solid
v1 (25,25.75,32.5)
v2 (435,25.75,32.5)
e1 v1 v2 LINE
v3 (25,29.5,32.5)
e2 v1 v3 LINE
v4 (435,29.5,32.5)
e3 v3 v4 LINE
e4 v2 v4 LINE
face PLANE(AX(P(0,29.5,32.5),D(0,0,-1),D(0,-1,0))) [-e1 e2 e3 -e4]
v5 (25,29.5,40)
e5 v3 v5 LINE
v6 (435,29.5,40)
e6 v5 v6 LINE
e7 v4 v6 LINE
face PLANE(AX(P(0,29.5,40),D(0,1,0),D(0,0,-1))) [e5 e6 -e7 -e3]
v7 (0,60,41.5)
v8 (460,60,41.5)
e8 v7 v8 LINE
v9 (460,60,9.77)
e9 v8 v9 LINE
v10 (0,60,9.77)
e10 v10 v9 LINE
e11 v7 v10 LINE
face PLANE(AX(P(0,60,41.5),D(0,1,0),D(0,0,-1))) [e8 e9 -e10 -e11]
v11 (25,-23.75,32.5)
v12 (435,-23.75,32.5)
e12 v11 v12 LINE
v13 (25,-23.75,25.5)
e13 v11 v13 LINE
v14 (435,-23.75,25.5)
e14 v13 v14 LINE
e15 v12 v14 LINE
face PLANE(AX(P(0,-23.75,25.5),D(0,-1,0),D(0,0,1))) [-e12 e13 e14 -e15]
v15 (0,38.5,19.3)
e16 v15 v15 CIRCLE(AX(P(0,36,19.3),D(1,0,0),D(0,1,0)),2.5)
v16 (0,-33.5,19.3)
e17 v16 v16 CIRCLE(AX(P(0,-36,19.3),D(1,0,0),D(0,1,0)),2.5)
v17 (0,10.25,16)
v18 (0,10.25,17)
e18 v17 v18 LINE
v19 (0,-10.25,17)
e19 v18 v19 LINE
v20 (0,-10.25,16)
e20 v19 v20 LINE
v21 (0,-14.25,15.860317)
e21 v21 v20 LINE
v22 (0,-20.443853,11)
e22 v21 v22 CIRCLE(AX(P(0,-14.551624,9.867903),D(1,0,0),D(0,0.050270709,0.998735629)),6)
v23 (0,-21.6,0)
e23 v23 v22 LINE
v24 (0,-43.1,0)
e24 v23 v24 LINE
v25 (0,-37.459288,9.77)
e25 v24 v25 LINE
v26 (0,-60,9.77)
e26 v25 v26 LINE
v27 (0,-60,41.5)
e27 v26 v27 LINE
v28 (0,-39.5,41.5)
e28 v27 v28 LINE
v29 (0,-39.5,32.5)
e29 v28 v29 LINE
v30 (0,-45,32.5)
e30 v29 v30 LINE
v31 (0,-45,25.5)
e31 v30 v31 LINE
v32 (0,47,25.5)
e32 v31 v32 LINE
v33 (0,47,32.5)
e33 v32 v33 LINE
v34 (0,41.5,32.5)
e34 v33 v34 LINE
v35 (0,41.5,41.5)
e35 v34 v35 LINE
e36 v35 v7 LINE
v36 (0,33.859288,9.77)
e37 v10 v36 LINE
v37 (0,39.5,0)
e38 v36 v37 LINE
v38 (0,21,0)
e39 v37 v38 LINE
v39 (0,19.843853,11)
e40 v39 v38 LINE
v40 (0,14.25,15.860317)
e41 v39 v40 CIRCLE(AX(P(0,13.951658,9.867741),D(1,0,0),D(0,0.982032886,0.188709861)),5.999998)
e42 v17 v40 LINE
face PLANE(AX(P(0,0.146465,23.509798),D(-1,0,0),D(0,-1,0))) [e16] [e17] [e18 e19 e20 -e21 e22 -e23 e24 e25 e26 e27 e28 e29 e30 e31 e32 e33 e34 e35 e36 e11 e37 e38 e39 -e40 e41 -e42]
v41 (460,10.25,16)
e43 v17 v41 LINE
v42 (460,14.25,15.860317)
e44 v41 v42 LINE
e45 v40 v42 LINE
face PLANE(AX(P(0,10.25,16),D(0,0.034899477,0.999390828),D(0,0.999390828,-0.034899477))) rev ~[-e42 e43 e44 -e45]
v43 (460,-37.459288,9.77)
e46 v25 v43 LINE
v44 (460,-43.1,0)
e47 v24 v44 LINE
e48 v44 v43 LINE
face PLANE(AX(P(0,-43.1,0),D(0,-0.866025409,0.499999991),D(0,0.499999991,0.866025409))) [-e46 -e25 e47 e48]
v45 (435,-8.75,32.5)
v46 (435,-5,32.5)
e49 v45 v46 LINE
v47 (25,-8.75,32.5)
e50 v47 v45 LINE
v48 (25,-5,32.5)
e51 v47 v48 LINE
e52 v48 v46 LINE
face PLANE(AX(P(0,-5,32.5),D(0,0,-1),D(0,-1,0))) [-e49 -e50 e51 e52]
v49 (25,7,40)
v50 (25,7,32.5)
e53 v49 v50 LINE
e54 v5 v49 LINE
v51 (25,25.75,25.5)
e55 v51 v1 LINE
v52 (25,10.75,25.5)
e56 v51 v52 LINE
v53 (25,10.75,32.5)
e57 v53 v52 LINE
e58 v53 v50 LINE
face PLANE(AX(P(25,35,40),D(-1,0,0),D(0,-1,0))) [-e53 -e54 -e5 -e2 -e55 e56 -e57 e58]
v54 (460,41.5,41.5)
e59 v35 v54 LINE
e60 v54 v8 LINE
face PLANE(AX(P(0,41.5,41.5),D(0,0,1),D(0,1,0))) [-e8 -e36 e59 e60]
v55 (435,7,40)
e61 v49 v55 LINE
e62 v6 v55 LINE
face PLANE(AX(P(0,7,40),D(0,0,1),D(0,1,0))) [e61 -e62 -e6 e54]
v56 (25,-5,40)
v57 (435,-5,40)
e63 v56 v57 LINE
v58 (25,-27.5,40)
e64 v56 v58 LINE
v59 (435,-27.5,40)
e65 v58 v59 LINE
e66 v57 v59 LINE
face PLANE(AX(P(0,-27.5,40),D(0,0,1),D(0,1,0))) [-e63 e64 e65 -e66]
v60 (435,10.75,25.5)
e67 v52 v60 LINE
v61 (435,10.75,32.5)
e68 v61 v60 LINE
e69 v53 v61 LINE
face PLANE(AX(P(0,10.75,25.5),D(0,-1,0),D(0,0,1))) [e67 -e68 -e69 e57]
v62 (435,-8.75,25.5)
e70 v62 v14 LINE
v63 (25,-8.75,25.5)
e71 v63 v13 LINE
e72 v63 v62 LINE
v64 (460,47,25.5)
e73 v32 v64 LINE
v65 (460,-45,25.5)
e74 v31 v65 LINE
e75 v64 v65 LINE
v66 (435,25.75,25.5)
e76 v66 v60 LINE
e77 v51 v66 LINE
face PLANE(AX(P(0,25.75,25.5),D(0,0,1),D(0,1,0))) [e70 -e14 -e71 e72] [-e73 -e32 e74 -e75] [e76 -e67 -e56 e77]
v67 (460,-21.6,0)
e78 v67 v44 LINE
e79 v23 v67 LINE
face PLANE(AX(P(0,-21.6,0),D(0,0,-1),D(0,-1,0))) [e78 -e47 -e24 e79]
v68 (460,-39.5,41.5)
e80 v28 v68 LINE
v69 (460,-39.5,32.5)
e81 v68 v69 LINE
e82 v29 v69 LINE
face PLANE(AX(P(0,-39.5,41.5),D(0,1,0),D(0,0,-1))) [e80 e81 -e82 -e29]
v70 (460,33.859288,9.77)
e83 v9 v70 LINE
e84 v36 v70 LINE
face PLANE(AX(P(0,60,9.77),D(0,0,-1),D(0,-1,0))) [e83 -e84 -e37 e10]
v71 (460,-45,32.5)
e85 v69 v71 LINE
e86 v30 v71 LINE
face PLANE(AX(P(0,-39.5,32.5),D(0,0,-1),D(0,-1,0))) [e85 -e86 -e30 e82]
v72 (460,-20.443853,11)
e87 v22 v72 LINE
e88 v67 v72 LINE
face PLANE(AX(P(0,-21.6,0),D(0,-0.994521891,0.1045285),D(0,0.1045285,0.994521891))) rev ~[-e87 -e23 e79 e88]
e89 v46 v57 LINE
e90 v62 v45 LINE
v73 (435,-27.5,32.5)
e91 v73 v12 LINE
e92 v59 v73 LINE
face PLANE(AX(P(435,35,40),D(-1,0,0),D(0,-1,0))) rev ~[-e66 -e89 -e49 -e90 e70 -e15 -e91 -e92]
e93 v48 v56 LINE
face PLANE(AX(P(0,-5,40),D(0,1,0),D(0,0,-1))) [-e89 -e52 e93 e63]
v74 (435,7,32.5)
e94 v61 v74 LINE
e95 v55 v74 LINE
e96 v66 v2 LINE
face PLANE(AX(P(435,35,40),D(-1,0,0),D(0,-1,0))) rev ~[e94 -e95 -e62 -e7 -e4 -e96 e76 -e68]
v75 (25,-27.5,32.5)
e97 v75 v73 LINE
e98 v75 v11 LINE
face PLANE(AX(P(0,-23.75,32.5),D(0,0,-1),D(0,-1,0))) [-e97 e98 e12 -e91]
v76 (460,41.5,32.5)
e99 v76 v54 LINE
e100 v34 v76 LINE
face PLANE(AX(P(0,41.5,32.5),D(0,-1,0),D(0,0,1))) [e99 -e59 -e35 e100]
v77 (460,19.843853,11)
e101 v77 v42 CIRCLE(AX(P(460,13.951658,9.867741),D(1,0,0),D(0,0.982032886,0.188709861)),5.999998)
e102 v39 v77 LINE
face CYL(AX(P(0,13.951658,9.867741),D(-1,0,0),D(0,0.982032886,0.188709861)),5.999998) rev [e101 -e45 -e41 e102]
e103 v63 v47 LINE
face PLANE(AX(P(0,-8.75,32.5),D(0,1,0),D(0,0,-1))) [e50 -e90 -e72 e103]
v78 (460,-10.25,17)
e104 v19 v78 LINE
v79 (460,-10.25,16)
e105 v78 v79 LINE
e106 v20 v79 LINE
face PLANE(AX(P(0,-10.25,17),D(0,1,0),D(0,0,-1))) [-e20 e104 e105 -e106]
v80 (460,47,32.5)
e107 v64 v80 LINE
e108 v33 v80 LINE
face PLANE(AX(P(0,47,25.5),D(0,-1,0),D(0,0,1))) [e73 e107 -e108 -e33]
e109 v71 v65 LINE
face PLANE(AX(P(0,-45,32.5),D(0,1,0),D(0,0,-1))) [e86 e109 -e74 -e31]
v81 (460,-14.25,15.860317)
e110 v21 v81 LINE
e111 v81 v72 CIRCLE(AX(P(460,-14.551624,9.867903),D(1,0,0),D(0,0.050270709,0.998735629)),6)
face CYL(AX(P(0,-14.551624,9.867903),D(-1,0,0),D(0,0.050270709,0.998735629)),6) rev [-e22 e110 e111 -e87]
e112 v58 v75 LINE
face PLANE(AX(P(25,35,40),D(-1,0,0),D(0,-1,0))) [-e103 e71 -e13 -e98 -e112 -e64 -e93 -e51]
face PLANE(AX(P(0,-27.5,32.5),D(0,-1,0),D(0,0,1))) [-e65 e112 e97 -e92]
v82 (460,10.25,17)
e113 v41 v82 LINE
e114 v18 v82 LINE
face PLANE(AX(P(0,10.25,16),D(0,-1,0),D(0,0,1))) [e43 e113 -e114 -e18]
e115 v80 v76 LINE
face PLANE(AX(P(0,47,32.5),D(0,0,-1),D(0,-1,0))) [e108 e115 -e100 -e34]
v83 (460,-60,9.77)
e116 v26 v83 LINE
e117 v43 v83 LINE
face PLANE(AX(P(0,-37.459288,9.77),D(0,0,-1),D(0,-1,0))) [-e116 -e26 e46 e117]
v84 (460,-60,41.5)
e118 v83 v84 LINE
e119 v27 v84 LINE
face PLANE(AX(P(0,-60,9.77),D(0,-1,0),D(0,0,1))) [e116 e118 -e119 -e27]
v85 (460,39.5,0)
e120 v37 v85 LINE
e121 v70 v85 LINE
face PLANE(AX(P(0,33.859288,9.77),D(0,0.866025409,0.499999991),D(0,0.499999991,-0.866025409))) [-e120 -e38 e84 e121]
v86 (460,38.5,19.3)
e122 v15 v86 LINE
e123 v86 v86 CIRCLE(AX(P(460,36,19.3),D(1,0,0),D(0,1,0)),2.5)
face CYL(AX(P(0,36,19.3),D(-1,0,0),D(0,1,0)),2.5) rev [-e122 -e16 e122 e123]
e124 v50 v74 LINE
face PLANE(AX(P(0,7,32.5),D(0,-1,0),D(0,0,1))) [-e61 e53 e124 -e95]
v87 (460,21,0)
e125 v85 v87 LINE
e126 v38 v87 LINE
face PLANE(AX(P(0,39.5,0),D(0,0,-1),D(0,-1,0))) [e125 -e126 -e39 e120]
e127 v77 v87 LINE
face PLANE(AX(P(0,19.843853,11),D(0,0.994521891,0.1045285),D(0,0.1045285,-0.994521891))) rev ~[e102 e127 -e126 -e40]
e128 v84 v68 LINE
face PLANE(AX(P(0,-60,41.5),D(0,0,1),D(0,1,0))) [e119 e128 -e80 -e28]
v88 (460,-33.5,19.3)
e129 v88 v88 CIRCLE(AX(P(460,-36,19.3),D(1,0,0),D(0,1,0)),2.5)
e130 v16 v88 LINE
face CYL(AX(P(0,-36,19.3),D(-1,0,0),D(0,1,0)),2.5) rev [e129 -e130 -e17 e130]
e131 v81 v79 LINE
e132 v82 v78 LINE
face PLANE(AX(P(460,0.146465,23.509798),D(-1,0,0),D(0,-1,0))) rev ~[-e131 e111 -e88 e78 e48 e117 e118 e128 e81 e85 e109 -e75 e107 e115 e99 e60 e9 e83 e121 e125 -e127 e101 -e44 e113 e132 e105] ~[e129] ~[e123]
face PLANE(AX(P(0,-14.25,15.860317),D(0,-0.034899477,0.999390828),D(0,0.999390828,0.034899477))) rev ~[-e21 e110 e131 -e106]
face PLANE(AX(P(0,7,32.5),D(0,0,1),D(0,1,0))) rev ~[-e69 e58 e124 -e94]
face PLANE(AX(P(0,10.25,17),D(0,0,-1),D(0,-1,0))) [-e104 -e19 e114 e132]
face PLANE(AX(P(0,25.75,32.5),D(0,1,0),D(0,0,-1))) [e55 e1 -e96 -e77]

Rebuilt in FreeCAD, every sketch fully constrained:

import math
import FreeCAD as App
import Part
import Sketcher
from FreeCAD import Vector
Q = App.Units.Quantity

doc = App.newDocument("Part")
params = doc.addObject("Spreadsheet::Sheet", "Params")
for row, (alias, value) in enumerate([
    ("sketch1_diameter", "5 mm"),
    ("sketch1_radius", "6 mm"),
    ("sketch1_height", "1 mm"),
    ("sketch1_height2", "9 mm"),
    ("sketch1_height3", "7 mm"),
    ("pad1_length", "460 mm"),
    ("sketch2_width", "25 mm"),
    ("sketch2_height", "70 mm"),
    ("pocket1_length", "14.5 mm"),
], start=1):
    params.set(f"A{row}", alias)
    params.set(f"B{row}", "=" + value)
    params.setAlias(f"B{row}", alias)

body = doc.addObject("PartDesign::Body", "Body")

sketch1 = body.newObject("Sketcher::SketchObject", "Sketch")
sketch1.AttachmentSupport = (doc.getObject("YZ_Plane"), [""])
sketch1.MapMode = "FlatFace"
sketch1.addGeometry([
    Part.LineSegment(Vector(-37.5, 9.8, 0), Vector(-43.1, 0, 0)),
    Part.LineSegment(Vector(-43.1, 0, 0), Vector(-21.6, 0, 0)),
    Part.LineSegment(Vector(-21.6, 0, 0), Vector(-20.4, 11, 0)),
    Part.ArcOfCircle(Part.Circle(Vector(-14.6, 9.9, 0), Vector(0, 0, 1), 6), math.radians(87), math.radians(169)),
    Part.LineSegment(Vector(-14.2, 15.9, 0), Vector(-10.2, 16, 0)),
    Part.LineSegment(Vector(-10.2, 16, 0), Vector(-10.2, 17, 0)),
    Part.LineSegment(Vector(-10.2, 17, 0), Vector(10.2, 17, 0)),
    Part.LineSegment(Vector(10.2, 17, 0), Vector(10.2, 16, 0)),
    Part.LineSegment(Vector(10.2, 16, 0), Vector(14.2, 15.9, 0)),
    Part.ArcOfCircle(Part.Circle(Vector(14, 9.9, 0), Vector(0, 0, 1), 6), math.radians(11), math.radians(87)),
    Part.LineSegment(Vector(19.8, 11, 0), Vector(21, 0, 0)),
    Part.LineSegment(Vector(21, 0, 0), Vector(39.5, 0, 0)),
    Part.LineSegment(Vector(39.5, 0, 0), Vector(33.9, 9.8, 0)),
    Part.LineSegment(Vector(33.9, 9.8, 0), Vector(60, 9.8, 0)),
    Part.LineSegment(Vector(60, 9.8, 0), Vector(60, 41.5, 0)),
    Part.LineSegment(Vector(60, 41.5, 0), Vector(41.5, 41.5, 0)),
    Part.LineSegment(Vector(41.5, 41.5, 0), Vector(41.5, 32.5, 0)),
    Part.LineSegment(Vector(41.5, 32.5, 0), Vector(47, 32.5, 0)),
    Part.LineSegment(Vector(47, 32.5, 0), Vector(47, 25.5, 0)),
    Part.LineSegment(Vector(47, 25.5, 0), Vector(25.8, 25.5, 0)),
    Part.LineSegment(Vector(25.8, 25.5, 0), Vector(25.8, 32.5, 0)),
    Part.LineSegment(Vector(25.8, 32.5, 0), Vector(29.5, 32.5, 0)),
    Part.LineSegment(Vector(29.5, 32.5, 0), Vector(29.5, 40, 0)),
    Part.LineSegment(Vector(29.5, 40, 0), Vector(7, 40, 0)),
    Part.LineSegment(Vector(7, 40, 0), Vector(7, 32.5, 0)),
    Part.LineSegment(Vector(7, 32.5, 0), Vector(10.8, 32.5, 0)),
    Part.LineSegment(Vector(10.8, 32.5, 0), Vector(10.8, 25.5, 0)),
    Part.LineSegment(Vector(10.8, 25.5, 0), Vector(-8.8, 25.5, 0)),
    Part.LineSegment(Vector(-8.8, 25.5, 0), Vector(-8.8, 32.5, 0)),
    Part.LineSegment(Vector(-8.8, 32.5, 0), Vector(-5, 32.5, 0)),
    Part.LineSegment(Vector(-5, 32.5, 0), Vector(-5, 40, 0)),
    Part.LineSegment(Vector(-5, 40, 0), Vector(-27.5, 40, 0)),
    Part.LineSegment(Vector(-27.5, 40, 0), Vector(-27.5, 32.5, 0)),
    Part.LineSegment(Vector(-27.5, 32.5, 0), Vector(-23.8, 32.5, 0)),
    Part.LineSegment(Vector(-23.8, 32.5, 0), Vector(-23.8, 25.5, 0)),
    Part.LineSegment(Vector(-23.8, 25.5, 0), Vector(-45, 25.5, 0)),
    Part.LineSegment(Vector(-45, 25.5, 0), Vector(-45, 32.5, 0)),
    Part.LineSegment(Vector(-45, 32.5, 0), Vector(-39.5, 32.5, 0)),
    Part.LineSegment(Vector(-39.5, 32.5, 0), Vector(-39.5, 41.5, 0)),
    Part.LineSegment(Vector(-39.5, 41.5, 0), Vector(-60, 41.5, 0)),
    Part.LineSegment(Vector(-60, 41.5, 0), Vector(-60, 9.8, 0)),
    Part.LineSegment(Vector(-60, 9.8, 0), Vector(-37.5, 9.8, 0)),
    Part.Circle(Vector(36, 19.3, 0), Vector(0, 0, 1), 2.5),
    Part.Circle(Vector(-36, 19.3, 0), Vector(0, 0, 1), 2.5),
], False)
sketch1.addConstraint([
    Sketcher.Constraint("Coincident", 0, 2, 1, 1),
    Sketcher.Constraint("Coincident", 1, 2, 2, 1),
    Sketcher.Constraint("Coincident", 2, 2, 3, 2),
    Sketcher.Constraint("Coincident", 3, 1, 4, 1),
    Sketcher.Constraint("Coincident", 4, 2, 5, 1),
    Sketcher.Constraint("Coincident", 5, 2, 6, 1),
    Sketcher.Constraint("Coincident", 6, 2, 7, 1),
    Sketcher.Constraint("Coincident", 7, 2, 8, 1),
    Sketcher.Constraint("Coincident", 8, 2, 9, 2),
    Sketcher.Constraint("Coincident", 9, 1, 10, 1),
    Sketcher.Constraint("Coincident", 10, 2, 11, 1),
    Sketcher.Constraint("Coincident", 11, 2, 12, 1),
    Sketcher.Constraint("Coincident", 12, 2, 13, 1),
    Sketcher.Constraint("Coincident", 13, 2, 14, 1),
    Sketcher.Constraint("Coincident", 14, 2, 15, 1),
    Sketcher.Constraint("Coincident", 15, 2, 16, 1),
    Sketcher.Constraint("Coincident", 16, 2, 17, 1),
    Sketcher.Constraint("Coincident", 17, 2, 18, 1),
    Sketcher.Constraint("Coincident", 18, 2, 19, 1),
    Sketcher.Constraint("Coincident", 19, 2, 20, 1),
    Sketcher.Constraint("Coincident", 20, 2, 21, 1),
    Sketcher.Constraint("Coincident", 21, 2, 22, 1),
    Sketcher.Constraint("Coincident", 22, 2, 23, 1),
    Sketcher.Constraint("Coincident", 23, 2, 24, 1),
    Sketcher.Constraint("Coincident", 24, 2, 25, 1),
    Sketcher.Constraint("Coincident", 25, 2, 26, 1),
    Sketcher.Constraint("Coincident", 26, 2, 27, 1),
    Sketcher.Constraint("Coincident", 27, 2, 28, 1),
    Sketcher.Constraint("Coincident", 28, 2, 29, 1),
    Sketcher.Constraint("Coincident", 29, 2, 30, 1),
    Sketcher.Constraint("Coincident", 30, 2, 31, 1),
    Sketcher.Constraint("Coincident", 31, 2, 32, 1),
    Sketcher.Constraint("Coincident", 32, 2, 33, 1),
    Sketcher.Constraint("Coincident", 33, 2, 34, 1),
    Sketcher.Constraint("Coincident", 34, 2, 35, 1),
    Sketcher.Constraint("Coincident", 35, 2, 36, 1),
    Sketcher.Constraint("Coincident", 36, 2, 37, 1),
    Sketcher.Constraint("Coincident", 37, 2, 38, 1),
    Sketcher.Constraint("Coincident", 38, 2, 39, 1),
    Sketcher.Constraint("Coincident", 39, 2, 40, 1),
    Sketcher.Constraint("Coincident", 40, 2, 41, 1),
    Sketcher.Constraint("Coincident", 41, 2, 0, 1),
    Sketcher.Constraint("Horizontal", 1),
    Sketcher.Constraint("Vertical", 5),
    Sketcher.Constraint("Horizontal", 6),
    Sketcher.Constraint("Vertical", 7),
    Sketcher.Constraint("Horizontal", 11),
    Sketcher.Constraint("Horizontal", 13),
    Sketcher.Constraint("Vertical", 14),
    Sketcher.Constraint("Horizontal", 15),
    Sketcher.Constraint("Vertical", 16),
    Sketcher.Constraint("Horizontal", 17),
    Sketcher.Constraint("Vertical", 18),
    Sketcher.Constraint("Horizontal", 19),
    Sketcher.Constraint("Vertical", 20),
    Sketcher.Constraint("Horizontal", 21),
    Sketcher.Constraint("Vertical", 22),
    Sketcher.Constraint("Horizontal", 23),
    Sketcher.Constraint("Vertical", 24),
    Sketcher.Constraint("Horizontal", 25),
    Sketcher.Constraint("Vertical", 26),
    Sketcher.Constraint("Horizontal", 27),
    Sketcher.Constraint("Vertical", 28),
    Sketcher.Constraint("Horizontal", 29),
    Sketcher.Constraint("Vertical", 30),
    Sketcher.Constraint("Horizontal", 31),
    Sketcher.Constraint("Vertical", 32),
    Sketcher.Constraint("Horizontal", 33),
    Sketcher.Constraint("Vertical", 34),
    Sketcher.Constraint("Horizontal", 35),
    Sketcher.Constraint("Vertical", 36),
    Sketcher.Constraint("Horizontal", 37),
    Sketcher.Constraint("Vertical", 38),
    Sketcher.Constraint("Horizontal", 39),
    Sketcher.Constraint("Vertical", 40),
    Sketcher.Constraint("Horizontal", 41),
    Sketcher.Constraint("Equal", 42, 43),
    Sketcher.Constraint("Symmetric", 42, 3, 43, 3, -2),
    Sketcher.Constraint("Symmetric", 4, 2, 7, 2, -2),
    Sketcher.Constraint("Symmetric", 3, 1, 8, 2, -2),
    Sketcher.Constraint("Symmetric", 14, 2, 39, 2, -2),
    Sketcher.Constraint("PointOnObject", 0, 2, -1),
    Sketcher.Constraint("PointOnObject", 10, 2, -1),
    Sketcher.Constraint("Horizontal", 2, 2, 9, 1),
    Sketcher.Constraint("Horizontal", 17, 2, 20, 2),
    Sketcher.Constraint("Horizontal", 21, 2, 24, 2),
    Sketcher.Constraint("Horizontal", 19, 2, 26, 2),
    Sketcher.Constraint("Horizontal", 25, 2, 28, 2),
    Sketcher.Constraint("Horizontal", 23, 2, 30, 2),
    Sketcher.Constraint("Horizontal", 29, 2, 32, 2),
    Sketcher.Constraint("Horizontal", 27, 2, 34, 2),
    Sketcher.Constraint("Horizontal", 33, 2, 36, 2),
    Sketcher.Constraint("Horizontal", 13, 2, 40, 2),
    Sketcher.Constraint("Equal", 11, 15),
    Sketcher.Constraint("Equal", 21, 25),
    Sketcher.Constraint("Equal", 25, 29),
    Sketcher.Constraint("Equal", 23, 31),
    Sketcher.Constraint("Equal", 29, 33),
    Sketcher.Constraint("Equal", 19, 35),
    Sketcher.Constraint("Equal", 17, 37),
    Sketcher.Constraint("Equal", 6, 39),
    Sketcher.Constraint("Equal", 2, 10),
    Sketcher.Constraint("Equal", 0, 12),
    Sketcher.Constraint("Diameter", 42, Q("5 mm")),
    Sketcher.Constraint("Radius", 3, Q("6 mm")),
    Sketcher.Constraint("DistanceY", 5, 1, 5, 2, Q("1 mm")),
    Sketcher.Constraint("DistanceY", 16, 2, 16, 1, Q("9 mm")),
    Sketcher.Constraint("DistanceY", 18, 2, 18, 1, Q("7 mm")),
    Sketcher.Constraint("Angle", 0, Q("-119.999999 deg")),
    Sketcher.Constraint("Angle", 2, Q("83.999998 deg")),
    Sketcher.Constraint("Angle", 4, Q("1.999999 deg")),
    Sketcher.Constraint("DistanceX", 1, 1, 1, 2, Q("21.5 mm")),
    Sketcher.Constraint("DistanceX", 6, 1, 6, 2, Q("20.5 mm")),
    Sketcher.Constraint("DistanceX", 11, 1, 11, 2, Q("18.5 mm")),
    Sketcher.Constraint("DistanceX", 17, 1, 17, 2, Q("5.5 mm")),
    Sketcher.Constraint("DistanceX", 23, 2, 23, 1, Q("22.5 mm")),
    Sketcher.Constraint("DistanceX", 27, 2, 27, 1, Q("19.5 mm")),
    Sketcher.Constraint("DistanceY", 22, 1, 22, 2, Q("7.5 mm")),
    Sketcher.Constraint("DistanceX", -1, 1, 42, 3, Q("36 mm")),
    Sketcher.Constraint("DistanceY", -1, 1, 2, 2, Q("11 mm")),
    Sketcher.Constraint("DistanceY", -1, 1, 4, 2, Q("16 mm")),
    Sketcher.Constraint("DistanceX", -1, 1, 10, 2, Q("21 mm")),
    Sketcher.Constraint("DistanceX", -1, 1, 13, 2, Q("60 mm")),
    Sketcher.Constraint("DistanceY", -1, 1, 22, 2, Q("40 mm")),
    Sketcher.Constraint("DistanceX", -1, 1, 23, 2, Q("7 mm")),
    Sketcher.Constraint("DistanceX", 3, 1, 4, 2, Q("4 mm")),
    Sketcher.Constraint("DistanceY", 14, 1, 14, 2, Q("31.73 mm")),
    Sketcher.Constraint("DistanceY", -1, 1, 42, 3, Q("19.3 mm")),
    Sketcher.Constraint("DistanceX", 0, 2, -1, 1, Q("43.1 mm")),
    Sketcher.Constraint("Radius", 9, Q("5.999998 mm")),
])
sketch1.setExpression("Constraints[103]", "Params.sketch1_diameter")
sketch1.setExpression("Constraints[104]", "Params.sketch1_radius")
sketch1.setExpression("Constraints[105]", "Params.sketch1_height")
sketch1.setExpression("Constraints[106]", "Params.sketch1_height2")
sketch1.setExpression("Constraints[107]", "Params.sketch1_height3")
pad1 = body.newObject("PartDesign::Pad", "Pad")
pad1.Profile = sketch1
pad1.setExpression("Length", "Params.pad1_length")

sketch2 = body.newObject("Sketcher::SketchObject", "Sketch001")
sketch2.AttachmentSupport = (doc.getObject("XY_Plane"), [""])
sketch2.MapMode = "FlatFace"
sketch2.AttachmentOffset = App.Placement(Vector(0, 0, 40), App.Rotation())
sketch2.addGeometry([
    Part.LineSegment(Vector(25, 35, 0), Vector(0, 35, 0)),
    Part.LineSegment(Vector(0, 35, 0), Vector(0, -35, 0)),
    Part.LineSegment(Vector(0, -35, 0), Vector(25, -35, 0)),
    Part.LineSegment(Vector(25, -35, 0), Vector(25, 35, 0)),
    Part.LineSegment(Vector(460, 35, 0), Vector(435, 35, 0)),
    Part.LineSegment(Vector(435, 35, 0), Vector(435, -35, 0)),
    Part.LineSegment(Vector(435, -35, 0), Vector(460, -35, 0)),
    Part.LineSegment(Vector(460, -35, 0), Vector(460, 35, 0)),
], False)
sketch2.addConstraint([
    Sketcher.Constraint("Coincident", 0, 2, 1, 1),
    Sketcher.Constraint("Coincident", 1, 2, 2, 1),
    Sketcher.Constraint("Coincident", 2, 2, 3, 1),
    Sketcher.Constraint("Coincident", 3, 2, 0, 1),
    Sketcher.Constraint("Coincident", 4, 2, 5, 1),
    Sketcher.Constraint("Coincident", 5, 2, 6, 1),
    Sketcher.Constraint("Coincident", 6, 2, 7, 1),
    Sketcher.Constraint("Coincident", 7, 2, 4, 1),
    Sketcher.Constraint("Horizontal", 0),
    Sketcher.Constraint("Vertical", 1),
    Sketcher.Constraint("Horizontal", 2),
    Sketcher.Constraint("Vertical", 3),
    Sketcher.Constraint("Horizontal", 4),
    Sketcher.Constraint("Vertical", 5),
    Sketcher.Constraint("Horizontal", 6),
    Sketcher.Constraint("Vertical", 7),
    Sketcher.Constraint("Symmetric", 0, 2, 1, 2, -1, 1),
    Sketcher.Constraint("Horizontal", 3, 2, 4, 2),
    Sketcher.Constraint("Horizontal", 2, 2, 5, 2),
    Sketcher.Constraint("Equal", 2, 4),
    Sketcher.Constraint("DistanceX", 0, 2, 0, 1, Q("25 mm")),
    Sketcher.Constraint("DistanceY", 1, 2, 1, 1, Q("70 mm")),
    Sketcher.Constraint("DistanceX", -1, 1, 4, 2, Q("435 mm")),
])
sketch2.setExpression("Constraints[20]", "Params.sketch2_width")
sketch2.setExpression("Constraints[21]", "Params.sketch2_height")
pocket1 = body.newObject("PartDesign::Pocket", "Pocket")
pocket1.Profile = sketch2
pocket1.setExpression("Length", "Params.pocket1_length")

doc.recompute()
